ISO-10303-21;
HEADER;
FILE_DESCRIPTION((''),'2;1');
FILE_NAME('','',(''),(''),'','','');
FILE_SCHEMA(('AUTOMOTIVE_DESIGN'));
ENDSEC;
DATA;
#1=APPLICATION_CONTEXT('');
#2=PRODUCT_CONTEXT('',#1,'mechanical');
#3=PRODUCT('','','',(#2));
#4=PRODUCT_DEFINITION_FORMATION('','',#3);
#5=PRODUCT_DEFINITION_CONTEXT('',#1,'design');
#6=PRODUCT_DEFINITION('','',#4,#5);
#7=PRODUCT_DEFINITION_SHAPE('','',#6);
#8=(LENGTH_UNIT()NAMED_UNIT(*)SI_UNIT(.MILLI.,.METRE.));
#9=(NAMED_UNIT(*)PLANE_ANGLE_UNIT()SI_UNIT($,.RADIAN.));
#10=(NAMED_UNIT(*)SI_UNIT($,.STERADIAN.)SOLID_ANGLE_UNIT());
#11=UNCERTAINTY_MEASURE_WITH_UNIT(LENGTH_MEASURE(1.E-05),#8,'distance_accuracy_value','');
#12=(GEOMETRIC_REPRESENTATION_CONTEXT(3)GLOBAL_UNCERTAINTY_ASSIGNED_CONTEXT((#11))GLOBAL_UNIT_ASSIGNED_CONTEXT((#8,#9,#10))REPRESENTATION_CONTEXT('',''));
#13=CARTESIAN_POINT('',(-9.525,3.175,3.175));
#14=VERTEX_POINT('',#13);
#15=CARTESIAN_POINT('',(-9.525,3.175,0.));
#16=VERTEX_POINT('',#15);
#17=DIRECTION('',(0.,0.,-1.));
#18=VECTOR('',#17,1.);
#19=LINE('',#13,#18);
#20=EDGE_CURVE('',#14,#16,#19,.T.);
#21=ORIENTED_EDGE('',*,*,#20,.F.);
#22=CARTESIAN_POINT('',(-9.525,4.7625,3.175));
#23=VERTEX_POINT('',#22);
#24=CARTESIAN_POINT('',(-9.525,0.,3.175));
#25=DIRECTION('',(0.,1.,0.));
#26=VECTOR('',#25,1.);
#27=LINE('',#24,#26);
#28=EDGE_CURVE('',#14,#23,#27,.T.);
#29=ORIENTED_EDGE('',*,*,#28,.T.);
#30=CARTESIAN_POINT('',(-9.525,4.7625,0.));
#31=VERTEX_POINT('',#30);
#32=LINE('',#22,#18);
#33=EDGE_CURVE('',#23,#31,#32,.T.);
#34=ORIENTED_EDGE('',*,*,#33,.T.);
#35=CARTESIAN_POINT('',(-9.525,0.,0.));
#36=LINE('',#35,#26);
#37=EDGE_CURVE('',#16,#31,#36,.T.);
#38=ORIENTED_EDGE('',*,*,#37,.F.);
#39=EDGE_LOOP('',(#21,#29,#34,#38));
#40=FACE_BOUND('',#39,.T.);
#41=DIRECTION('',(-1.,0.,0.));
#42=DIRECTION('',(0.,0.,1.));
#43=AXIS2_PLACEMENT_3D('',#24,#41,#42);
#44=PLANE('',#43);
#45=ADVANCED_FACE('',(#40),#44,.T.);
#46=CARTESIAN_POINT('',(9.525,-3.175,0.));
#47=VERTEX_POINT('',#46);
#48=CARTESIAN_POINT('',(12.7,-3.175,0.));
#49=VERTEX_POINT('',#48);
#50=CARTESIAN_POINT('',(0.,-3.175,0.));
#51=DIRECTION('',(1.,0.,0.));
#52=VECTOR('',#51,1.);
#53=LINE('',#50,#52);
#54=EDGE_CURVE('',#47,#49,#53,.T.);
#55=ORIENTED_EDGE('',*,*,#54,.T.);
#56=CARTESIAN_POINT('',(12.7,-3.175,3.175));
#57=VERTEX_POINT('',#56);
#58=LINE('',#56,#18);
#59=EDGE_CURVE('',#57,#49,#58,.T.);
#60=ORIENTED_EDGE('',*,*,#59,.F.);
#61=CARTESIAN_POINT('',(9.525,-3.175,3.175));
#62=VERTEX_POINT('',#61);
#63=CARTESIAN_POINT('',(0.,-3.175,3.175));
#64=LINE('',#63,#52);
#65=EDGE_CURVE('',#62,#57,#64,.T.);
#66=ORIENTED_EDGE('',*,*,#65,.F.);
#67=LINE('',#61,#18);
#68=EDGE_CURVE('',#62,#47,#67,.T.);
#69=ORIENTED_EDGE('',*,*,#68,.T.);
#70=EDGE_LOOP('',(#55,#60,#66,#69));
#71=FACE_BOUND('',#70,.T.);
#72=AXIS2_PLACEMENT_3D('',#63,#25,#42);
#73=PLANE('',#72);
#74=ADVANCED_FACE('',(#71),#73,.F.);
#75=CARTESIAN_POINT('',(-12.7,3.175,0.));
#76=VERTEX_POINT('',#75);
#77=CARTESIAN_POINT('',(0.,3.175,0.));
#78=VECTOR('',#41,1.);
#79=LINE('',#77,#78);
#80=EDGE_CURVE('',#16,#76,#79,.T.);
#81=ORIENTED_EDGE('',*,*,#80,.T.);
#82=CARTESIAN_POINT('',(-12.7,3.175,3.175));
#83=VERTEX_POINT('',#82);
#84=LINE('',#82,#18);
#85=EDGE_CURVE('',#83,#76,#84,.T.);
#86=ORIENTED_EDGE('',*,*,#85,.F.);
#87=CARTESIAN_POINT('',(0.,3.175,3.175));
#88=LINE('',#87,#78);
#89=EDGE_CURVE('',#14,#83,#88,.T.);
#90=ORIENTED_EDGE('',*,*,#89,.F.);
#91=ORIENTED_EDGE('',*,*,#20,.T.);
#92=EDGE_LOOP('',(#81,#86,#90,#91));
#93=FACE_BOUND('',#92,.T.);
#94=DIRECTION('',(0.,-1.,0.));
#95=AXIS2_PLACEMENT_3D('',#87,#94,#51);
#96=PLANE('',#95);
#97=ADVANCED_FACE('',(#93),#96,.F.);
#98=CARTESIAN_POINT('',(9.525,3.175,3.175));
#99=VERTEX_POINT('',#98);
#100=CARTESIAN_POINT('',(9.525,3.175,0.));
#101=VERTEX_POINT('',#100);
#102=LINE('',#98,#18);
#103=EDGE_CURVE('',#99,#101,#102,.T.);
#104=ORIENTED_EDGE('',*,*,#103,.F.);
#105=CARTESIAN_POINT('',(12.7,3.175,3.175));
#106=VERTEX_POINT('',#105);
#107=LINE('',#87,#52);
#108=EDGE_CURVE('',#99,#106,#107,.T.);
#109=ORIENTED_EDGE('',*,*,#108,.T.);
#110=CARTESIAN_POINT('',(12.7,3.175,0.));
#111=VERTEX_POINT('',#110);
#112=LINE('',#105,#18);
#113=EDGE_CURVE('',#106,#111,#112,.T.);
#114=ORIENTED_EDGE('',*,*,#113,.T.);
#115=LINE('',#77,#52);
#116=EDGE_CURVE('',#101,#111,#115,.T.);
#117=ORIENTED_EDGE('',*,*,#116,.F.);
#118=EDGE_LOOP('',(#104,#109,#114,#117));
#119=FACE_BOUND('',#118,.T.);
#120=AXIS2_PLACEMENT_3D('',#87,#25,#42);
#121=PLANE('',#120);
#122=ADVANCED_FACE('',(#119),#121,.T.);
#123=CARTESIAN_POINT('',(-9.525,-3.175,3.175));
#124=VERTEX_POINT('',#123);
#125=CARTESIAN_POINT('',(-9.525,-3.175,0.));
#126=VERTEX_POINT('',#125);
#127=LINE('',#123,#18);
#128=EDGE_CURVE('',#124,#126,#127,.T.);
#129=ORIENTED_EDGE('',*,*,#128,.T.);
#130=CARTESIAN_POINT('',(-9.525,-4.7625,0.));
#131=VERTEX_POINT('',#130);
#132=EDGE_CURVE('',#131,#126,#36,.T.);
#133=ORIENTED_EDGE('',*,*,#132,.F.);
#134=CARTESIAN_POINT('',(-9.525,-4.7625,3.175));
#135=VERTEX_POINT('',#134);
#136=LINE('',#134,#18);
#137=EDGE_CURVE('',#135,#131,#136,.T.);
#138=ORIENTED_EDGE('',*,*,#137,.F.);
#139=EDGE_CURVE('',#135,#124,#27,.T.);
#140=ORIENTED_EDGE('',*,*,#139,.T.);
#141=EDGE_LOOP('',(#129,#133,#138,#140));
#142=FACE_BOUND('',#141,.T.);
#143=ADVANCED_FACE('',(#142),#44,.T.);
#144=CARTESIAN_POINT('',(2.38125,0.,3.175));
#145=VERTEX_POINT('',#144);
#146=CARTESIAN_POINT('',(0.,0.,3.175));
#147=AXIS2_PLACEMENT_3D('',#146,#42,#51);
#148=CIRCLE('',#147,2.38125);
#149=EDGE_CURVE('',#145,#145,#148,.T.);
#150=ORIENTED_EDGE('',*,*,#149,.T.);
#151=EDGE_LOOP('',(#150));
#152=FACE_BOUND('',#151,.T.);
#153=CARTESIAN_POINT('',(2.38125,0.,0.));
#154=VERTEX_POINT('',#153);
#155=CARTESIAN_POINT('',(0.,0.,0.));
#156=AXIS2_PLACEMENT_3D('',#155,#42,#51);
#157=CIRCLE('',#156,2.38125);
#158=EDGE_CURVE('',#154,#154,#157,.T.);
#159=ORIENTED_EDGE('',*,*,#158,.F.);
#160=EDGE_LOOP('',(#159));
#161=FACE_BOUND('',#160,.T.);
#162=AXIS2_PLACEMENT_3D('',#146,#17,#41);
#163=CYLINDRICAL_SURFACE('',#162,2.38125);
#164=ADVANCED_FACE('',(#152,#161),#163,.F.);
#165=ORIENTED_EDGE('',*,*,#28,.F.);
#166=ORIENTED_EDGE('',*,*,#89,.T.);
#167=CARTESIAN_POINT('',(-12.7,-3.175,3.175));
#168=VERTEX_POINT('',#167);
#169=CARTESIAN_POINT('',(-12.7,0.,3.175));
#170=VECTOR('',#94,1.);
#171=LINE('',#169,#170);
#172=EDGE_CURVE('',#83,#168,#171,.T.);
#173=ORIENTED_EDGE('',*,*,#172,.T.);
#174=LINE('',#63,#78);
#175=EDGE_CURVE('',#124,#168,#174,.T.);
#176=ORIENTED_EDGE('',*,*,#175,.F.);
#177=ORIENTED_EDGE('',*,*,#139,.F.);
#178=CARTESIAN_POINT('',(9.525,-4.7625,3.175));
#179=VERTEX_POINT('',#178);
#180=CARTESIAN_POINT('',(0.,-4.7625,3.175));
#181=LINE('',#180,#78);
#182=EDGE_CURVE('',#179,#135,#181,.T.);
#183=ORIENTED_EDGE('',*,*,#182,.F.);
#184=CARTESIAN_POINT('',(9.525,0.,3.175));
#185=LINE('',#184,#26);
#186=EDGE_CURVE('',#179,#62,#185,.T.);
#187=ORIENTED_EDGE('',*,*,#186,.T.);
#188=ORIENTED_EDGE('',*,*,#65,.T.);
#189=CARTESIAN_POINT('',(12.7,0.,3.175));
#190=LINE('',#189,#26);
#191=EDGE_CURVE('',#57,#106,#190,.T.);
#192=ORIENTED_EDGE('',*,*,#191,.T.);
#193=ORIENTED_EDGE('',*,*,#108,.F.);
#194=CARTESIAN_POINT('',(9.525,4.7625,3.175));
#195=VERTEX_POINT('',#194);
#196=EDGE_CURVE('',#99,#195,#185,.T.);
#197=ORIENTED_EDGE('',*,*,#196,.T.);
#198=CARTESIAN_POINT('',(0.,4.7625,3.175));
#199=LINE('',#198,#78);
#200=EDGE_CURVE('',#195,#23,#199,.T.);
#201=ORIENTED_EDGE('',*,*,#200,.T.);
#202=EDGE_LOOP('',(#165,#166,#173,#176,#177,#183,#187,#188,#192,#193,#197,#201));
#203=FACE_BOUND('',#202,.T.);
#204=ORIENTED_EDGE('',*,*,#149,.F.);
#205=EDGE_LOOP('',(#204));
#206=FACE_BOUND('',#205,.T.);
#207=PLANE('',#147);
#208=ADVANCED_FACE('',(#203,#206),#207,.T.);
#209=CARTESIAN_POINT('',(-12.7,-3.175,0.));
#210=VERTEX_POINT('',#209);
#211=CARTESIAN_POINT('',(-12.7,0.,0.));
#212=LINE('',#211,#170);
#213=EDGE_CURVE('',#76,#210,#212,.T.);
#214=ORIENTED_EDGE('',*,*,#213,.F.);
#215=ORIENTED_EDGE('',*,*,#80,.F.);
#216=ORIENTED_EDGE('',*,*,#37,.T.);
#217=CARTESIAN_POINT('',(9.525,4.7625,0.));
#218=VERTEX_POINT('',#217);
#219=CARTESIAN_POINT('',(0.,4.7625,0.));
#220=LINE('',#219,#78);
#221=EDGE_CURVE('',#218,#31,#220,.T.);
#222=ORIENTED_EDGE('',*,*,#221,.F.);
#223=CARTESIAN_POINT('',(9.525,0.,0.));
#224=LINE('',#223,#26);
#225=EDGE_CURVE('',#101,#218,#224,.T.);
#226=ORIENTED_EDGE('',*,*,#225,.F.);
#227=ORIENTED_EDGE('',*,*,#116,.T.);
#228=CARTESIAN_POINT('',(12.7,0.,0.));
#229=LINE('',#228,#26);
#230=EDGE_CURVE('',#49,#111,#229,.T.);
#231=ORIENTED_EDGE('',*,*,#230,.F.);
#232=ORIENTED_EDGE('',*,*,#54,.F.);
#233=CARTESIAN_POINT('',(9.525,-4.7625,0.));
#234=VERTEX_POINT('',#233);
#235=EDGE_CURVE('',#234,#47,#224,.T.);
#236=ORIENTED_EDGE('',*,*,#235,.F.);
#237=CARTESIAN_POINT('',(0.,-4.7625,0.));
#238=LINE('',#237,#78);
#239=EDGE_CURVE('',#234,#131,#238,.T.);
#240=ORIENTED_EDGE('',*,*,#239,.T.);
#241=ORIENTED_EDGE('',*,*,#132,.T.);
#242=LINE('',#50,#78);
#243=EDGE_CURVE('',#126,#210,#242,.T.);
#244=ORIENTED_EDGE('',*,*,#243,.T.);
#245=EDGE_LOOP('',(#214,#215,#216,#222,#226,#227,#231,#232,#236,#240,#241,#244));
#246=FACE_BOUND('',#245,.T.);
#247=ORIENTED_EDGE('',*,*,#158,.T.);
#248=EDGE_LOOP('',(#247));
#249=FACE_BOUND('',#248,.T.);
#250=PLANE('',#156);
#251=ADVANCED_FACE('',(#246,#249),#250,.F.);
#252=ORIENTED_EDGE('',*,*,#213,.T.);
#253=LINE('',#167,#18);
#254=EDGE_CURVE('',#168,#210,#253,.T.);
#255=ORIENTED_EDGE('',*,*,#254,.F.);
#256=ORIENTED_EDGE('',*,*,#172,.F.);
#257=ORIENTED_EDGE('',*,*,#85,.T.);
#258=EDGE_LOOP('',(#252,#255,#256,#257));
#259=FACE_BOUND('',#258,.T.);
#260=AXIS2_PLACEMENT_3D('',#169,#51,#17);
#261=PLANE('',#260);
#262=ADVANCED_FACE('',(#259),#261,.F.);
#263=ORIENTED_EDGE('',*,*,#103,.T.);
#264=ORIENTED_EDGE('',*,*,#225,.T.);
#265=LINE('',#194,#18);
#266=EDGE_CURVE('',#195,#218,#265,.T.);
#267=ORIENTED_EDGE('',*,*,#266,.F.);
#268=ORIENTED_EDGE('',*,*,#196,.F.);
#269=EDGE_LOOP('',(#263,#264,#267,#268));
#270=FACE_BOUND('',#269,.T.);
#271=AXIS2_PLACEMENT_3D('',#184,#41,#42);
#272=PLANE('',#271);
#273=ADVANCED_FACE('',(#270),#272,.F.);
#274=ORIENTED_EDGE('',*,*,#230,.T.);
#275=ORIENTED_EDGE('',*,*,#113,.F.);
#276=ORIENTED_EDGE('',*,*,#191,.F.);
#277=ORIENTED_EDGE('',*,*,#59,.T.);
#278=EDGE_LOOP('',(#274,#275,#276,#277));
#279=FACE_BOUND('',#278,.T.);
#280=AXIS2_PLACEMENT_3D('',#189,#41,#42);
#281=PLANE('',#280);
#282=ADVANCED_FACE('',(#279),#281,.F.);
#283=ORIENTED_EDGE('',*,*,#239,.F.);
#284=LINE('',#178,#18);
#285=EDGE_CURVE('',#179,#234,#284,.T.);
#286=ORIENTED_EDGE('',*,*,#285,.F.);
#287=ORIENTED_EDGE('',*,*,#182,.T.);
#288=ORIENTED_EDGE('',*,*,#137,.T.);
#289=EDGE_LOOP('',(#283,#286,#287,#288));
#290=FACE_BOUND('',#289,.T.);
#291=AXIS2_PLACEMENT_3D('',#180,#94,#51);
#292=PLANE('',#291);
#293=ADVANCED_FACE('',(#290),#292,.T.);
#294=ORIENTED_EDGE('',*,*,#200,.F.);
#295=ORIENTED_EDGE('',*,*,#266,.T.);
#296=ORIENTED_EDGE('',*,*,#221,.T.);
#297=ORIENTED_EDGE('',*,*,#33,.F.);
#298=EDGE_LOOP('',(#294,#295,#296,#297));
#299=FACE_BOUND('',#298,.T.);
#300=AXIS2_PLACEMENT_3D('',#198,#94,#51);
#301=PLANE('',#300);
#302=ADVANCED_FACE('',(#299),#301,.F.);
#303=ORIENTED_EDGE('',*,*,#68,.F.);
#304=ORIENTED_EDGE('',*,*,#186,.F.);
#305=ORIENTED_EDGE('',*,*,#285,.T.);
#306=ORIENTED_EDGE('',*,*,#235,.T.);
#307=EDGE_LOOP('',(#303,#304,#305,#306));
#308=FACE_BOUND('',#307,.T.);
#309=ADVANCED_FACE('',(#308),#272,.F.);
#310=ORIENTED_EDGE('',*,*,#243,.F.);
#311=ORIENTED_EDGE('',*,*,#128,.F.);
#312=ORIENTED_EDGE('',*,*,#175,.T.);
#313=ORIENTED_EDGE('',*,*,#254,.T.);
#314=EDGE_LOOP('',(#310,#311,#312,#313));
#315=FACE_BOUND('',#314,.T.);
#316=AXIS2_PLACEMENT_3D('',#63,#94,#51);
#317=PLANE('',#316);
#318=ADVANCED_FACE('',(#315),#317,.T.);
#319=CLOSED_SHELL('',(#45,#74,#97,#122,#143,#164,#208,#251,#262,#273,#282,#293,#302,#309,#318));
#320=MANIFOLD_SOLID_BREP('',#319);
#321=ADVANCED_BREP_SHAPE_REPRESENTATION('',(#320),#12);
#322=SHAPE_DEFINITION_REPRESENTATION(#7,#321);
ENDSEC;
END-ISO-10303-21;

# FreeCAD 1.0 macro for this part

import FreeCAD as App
import Part
import Sketcher
Q = App.Units.Quantity

doc = App.newDocument("Part")
body = doc.addObject("PartDesign::Body", "Body")

sketch1 = body.newObject("Sketcher::SketchObject", "Sketch")
sketch1.AttachmentSupport = (doc.getObject("XY_Plane"), [""])
sketch1.MapMode = "FlatFace"
sketch1.addGeometry([
    Part.LineSegment(App.Vector(-12.7, 3.175, 0), App.Vector(-12.7, -3.175, 0)),
    Part.LineSegment(App.Vector(-12.7, -3.175, 0), App.Vector(-9.525, -3.175, 0)),
    Part.LineSegment(App.Vector(-9.525, -3.175, 0), App.Vector(-9.525, -4.7625, 0)),
    Part.LineSegment(App.Vector(-9.525, -4.7625, 0), App.Vector(9.525, -4.7625, 0)),
    Part.LineSegment(App.Vector(9.525, -4.7625, 0), App.Vector(9.525, -3.175, 0)),
    Part.LineSegment(App.Vector(9.525, -3.175, 0), App.Vector(12.7, -3.175, 0)),
    Part.LineSegment(App.Vector(12.7, -3.175, 0), App.Vector(12.7, 3.175, 0)),
    Part.LineSegment(App.Vector(12.7, 3.175, 0), App.Vector(9.525, 3.175, 0)),
    Part.LineSegment(App.Vector(9.525, 3.175, 0), App.Vector(9.525, 4.7625, 0)),
    Part.LineSegment(App.Vector(9.525, 4.7625, 0), App.Vector(-9.525, 4.7625, 0)),
    Part.LineSegment(App.Vector(-9.525, 4.7625, 0), App.Vector(-9.525, 3.175, 0)),
    Part.LineSegment(App.Vector(-9.525, 3.175, 0), App.Vector(-12.7, 3.175, 0)),
    Part.Circle(App.Vector(0, 0, 0), App.Vector(0, 0, 1), 2.38125),
], False)
sketch1.addConstraint([
    Sketcher.Constraint("Coincident", 0, 2, 1, 1),
    Sketcher.Constraint("Coincident", 1, 2, 2, 1),
    Sketcher.Constraint("Coincident", 2, 2, 3, 1),
    Sketcher.Constraint("Coincident", 3, 2, 4, 1),
    Sketcher.Constraint("Coincident", 4, 2, 5, 1),
    Sketcher.Constraint("Coincident", 5, 2, 6, 1),
    Sketcher.Constraint("Coincident", 6, 2, 7, 1),
    Sketcher.Constraint("Coincident", 7, 2, 8, 1),
    Sketcher.Constraint("Coincident", 8, 2, 9, 1),
    Sketcher.Constraint("Coincident", 9, 2, 10, 1),
    Sketcher.Constraint("Coincident", 10, 2, 11, 1),
    Sketcher.Constraint("Coincident", 11, 2, 0, 1),
    Sketcher.Constraint("Vertical", 0),
    Sketcher.Constraint("Horizontal", 1),
    Sketcher.Constraint("Vertical", 2),
    Sketcher.Constraint("Horizontal", 3),
    Sketcher.Constraint("Vertical", 4),
    Sketcher.Constraint("Horizontal", 5),
    Sketcher.Constraint("Vertical", 6),
    Sketcher.Constraint("Horizontal", 7),
    Sketcher.Constraint("Vertical", 8),
    Sketcher.Constraint("Horizontal", 9),
    Sketcher.Constraint("Vertical", 10),
    Sketcher.Constraint("Horizontal", 11),
    Sketcher.Constraint("Coincident", 12, 3, -1, 1),
    Sketcher.Constraint("Symmetric", 0, 2, 6, 2, -1, 1),
    Sketcher.Constraint("Symmetric", 2, 2, 8, 2, -1, 1),
    Sketcher.Constraint("Symmetric", 4, 2, 10, 2, -1, 1),
    Sketcher.Constraint("Symmetric", 1, 2, 4, 2, -2),
    Sketcher.Constraint("Diameter", 12, Q("0.1875 in")),
    Sketcher.Constraint("DistanceX", 3, 1, 3, 2, Q("0.75 in")),
    Sketcher.Constraint("DistanceY", 0, 2, 0, 1, Q("0.25 in")),
    Sketcher.Constraint("DistanceX", 0, 2, -1, 1, Q("0.5 in")),
    Sketcher.Constraint("DistanceY", 2, 2, 2, 1, Q("0.0625 in")),
])
pad1 = body.newObject("PartDesign::Pad", "Pad")
pad1.Profile = sketch1
pad1.Length = Q("0.125 in")

doc.recompute()
